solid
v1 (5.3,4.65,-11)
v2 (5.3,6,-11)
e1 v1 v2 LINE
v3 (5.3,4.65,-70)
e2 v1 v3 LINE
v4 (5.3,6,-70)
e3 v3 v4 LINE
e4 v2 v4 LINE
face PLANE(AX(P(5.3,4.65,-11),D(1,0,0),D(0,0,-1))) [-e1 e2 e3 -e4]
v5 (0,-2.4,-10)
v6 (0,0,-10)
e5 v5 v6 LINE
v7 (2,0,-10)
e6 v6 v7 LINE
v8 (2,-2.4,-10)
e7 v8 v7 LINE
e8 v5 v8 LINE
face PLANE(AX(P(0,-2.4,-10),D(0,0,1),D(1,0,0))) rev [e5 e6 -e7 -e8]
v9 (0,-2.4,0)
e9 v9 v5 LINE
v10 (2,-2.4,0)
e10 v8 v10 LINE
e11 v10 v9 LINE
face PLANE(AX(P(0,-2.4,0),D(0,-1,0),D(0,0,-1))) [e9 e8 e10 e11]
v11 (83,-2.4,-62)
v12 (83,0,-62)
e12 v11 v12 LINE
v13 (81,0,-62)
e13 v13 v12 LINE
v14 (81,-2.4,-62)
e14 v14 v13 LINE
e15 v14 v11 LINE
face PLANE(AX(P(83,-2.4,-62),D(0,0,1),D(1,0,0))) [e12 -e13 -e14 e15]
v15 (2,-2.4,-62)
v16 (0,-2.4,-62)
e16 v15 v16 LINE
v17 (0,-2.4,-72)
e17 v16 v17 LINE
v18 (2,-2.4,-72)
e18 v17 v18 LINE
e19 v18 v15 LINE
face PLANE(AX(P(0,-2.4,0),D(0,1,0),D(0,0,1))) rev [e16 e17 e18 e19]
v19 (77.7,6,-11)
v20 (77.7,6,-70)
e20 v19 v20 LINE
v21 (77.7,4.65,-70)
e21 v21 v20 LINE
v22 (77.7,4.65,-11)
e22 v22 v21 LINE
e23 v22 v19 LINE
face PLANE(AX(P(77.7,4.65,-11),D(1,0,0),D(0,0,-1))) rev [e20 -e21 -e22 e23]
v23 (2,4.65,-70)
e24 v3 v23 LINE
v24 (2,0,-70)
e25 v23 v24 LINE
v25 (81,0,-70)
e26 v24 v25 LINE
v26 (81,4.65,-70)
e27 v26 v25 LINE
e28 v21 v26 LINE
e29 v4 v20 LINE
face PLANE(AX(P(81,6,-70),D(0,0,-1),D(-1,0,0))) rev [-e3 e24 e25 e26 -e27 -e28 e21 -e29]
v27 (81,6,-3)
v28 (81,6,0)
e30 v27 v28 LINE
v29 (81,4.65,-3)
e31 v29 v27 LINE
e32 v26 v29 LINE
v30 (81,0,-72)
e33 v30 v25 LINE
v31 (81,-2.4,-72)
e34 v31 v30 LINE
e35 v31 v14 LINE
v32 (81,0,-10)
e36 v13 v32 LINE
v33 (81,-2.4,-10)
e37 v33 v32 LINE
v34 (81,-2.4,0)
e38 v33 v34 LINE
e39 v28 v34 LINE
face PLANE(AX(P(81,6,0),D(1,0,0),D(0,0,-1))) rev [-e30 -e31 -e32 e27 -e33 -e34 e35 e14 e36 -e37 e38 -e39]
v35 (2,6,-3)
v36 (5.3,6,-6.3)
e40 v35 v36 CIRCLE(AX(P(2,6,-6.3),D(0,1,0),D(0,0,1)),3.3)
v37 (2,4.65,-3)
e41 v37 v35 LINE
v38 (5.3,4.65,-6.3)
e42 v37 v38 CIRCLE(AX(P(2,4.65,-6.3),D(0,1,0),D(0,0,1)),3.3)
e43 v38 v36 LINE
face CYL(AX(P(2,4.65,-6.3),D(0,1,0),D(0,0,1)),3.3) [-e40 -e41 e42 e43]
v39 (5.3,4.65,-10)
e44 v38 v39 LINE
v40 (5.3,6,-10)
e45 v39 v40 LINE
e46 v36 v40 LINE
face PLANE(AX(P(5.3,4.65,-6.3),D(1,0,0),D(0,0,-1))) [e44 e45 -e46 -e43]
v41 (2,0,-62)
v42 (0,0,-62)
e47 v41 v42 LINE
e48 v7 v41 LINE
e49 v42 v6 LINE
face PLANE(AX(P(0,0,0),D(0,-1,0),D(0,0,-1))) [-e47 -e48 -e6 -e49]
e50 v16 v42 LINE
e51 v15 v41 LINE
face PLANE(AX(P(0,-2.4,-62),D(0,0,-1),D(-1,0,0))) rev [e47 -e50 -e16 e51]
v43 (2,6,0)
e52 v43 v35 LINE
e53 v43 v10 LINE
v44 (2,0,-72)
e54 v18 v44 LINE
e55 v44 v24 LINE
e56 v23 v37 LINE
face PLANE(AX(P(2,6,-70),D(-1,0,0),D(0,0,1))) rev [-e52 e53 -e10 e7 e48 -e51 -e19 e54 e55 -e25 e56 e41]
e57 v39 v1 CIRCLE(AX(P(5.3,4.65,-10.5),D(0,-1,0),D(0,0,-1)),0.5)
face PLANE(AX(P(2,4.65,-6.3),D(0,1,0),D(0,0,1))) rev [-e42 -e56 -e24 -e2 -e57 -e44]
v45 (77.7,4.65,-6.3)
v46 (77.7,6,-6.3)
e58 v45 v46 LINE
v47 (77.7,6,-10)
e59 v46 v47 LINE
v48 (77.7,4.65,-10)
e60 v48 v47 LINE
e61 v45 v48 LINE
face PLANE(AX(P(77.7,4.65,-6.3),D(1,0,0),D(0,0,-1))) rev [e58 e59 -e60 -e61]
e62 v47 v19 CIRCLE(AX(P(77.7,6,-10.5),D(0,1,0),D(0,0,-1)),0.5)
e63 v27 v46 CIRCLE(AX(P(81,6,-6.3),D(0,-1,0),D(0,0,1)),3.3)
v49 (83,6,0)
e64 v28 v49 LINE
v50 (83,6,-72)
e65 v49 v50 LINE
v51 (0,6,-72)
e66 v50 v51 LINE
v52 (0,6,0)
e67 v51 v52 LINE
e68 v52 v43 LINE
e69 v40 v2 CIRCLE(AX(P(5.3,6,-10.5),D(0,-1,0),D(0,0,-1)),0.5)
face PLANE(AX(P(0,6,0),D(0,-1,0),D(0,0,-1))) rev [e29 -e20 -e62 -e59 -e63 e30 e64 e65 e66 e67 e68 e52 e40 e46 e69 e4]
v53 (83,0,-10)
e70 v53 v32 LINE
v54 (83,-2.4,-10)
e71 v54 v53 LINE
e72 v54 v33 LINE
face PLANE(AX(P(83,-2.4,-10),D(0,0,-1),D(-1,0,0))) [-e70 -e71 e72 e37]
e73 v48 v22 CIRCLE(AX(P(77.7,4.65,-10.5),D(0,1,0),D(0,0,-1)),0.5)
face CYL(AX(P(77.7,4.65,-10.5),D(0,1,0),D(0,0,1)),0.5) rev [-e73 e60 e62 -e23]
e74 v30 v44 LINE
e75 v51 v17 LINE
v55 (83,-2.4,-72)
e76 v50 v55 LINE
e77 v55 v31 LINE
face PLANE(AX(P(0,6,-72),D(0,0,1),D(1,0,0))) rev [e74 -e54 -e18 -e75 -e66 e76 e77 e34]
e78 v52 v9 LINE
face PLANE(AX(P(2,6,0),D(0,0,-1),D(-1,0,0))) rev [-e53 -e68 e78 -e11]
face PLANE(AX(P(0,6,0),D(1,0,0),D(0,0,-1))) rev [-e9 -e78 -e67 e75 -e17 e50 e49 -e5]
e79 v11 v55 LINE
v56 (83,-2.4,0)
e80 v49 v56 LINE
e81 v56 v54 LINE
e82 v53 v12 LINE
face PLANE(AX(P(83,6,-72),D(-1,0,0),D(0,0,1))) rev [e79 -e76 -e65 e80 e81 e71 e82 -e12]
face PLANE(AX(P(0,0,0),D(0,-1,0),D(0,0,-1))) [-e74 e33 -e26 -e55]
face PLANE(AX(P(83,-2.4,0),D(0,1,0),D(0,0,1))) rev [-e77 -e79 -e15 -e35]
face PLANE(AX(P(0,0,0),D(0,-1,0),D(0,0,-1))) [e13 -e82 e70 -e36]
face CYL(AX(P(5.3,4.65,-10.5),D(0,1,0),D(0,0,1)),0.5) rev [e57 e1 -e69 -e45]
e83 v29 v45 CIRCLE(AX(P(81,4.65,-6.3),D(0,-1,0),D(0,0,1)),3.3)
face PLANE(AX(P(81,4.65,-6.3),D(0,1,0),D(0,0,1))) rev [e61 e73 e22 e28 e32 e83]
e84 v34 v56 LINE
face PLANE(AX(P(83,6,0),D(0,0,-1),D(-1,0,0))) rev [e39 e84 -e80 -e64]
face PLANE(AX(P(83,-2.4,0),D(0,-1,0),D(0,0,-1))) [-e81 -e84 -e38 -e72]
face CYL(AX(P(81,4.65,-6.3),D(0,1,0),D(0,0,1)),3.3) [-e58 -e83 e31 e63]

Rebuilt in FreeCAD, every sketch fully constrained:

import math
import FreeCAD as App
import Part
import Sketcher
from FreeCAD import Vector


def add_polygon(sketch, points):
    """Adds a closed chain of lines whose ends are joined by coincident constraints."""
    first, n = sketch.GeometryCount, len(points)
    for a, b in zip(points, points[1:] + points[:1]):
        sketch.addGeometry(Part.LineSegment(App.Vector(*a, 0), App.Vector(*b, 0)), False)
    for i in range(n):
        sketch.addConstraint(Sketcher.Constraint("Coincident", first + i, 2, first + (i + 1) % n, 1))

doc = App.newDocument("Part")
body = doc.addObject("PartDesign::Body", "Body")

# Sketch on XZ plane
sketch1 = body.newObject("Sketcher::SketchObject", "Sketch")
sketch1.AttachmentSupport = (doc.getObject("XZ_Plane"), [""])
sketch1.MapMode = "FlatFace"
add_polygon(sketch1, [(0, -72), (0, 0), (2, 0), (2, -70), (81, -70), (81, 0), (83, 0), (83, -72)])  # lines 0-7
sketch1.addConstraint([
    Sketcher.Constraint("Vertical", 0),
    Sketcher.Constraint("Horizontal", 1),
    Sketcher.Constraint("Vertical", 2),
    Sketcher.Constraint("Horizontal", 3),
    Sketcher.Constraint("Vertical", 4),
    Sketcher.Constraint("Horizontal", 5),
    Sketcher.Constraint("Vertical", 6),
    Sketcher.Constraint("Horizontal", 7),
    Sketcher.Constraint("Coincident", 0, 2, -1, 1),
    Sketcher.Constraint("PointOnObject", 4, 2, -1),
    Sketcher.Constraint("Equal", 1, 5),
    Sketcher.Constraint("DistanceX", 1, 1, 1, 2, 2.0),
    Sketcher.Constraint("DistanceX", 3, 1, 3, 2, 79.0),
    Sketcher.Constraint("DistanceY", 0, 1, 0, 2, 72.0),
    Sketcher.Constraint("DistanceY", 2, 2, 2, 1, 70.0),
])
pad1 = body.newObject("PartDesign::Pad", "Pad")
pad1.Profile = sketch1
pad1.Length = 6
pad1.Reversed = True

# Sketch on XZ plane
sketch2 = body.newObject("Sketcher::SketchObject", "Sketch001")
sketch2.AttachmentSupport = (doc.getObject("XZ_Plane"), [""])
sketch2.MapMode = "FlatFace"
sketch2.AttachmentOffset = App.Placement(Vector(0, 0, -6), App.Rotation())
sketch2.addGeometry([
    Part.LineSegment(Vector(2, -70, 0), Vector(2, -3, 0)),  # 0
    Part.ArcOfCircle(Part.Circle(Vector(2, -6.3, 0), Vector(0, 0, 1), 3.3), math.radians(0), math.radians(90)),  # 1
    Part.LineSegment(Vector(5.3, -6.3, 0), Vector(5.3, -10, 0)),  # 2
    Part.ArcOfCircle(Part.Circle(Vector(5.3, -10.5, 0), Vector(0, 0, 1), 0.5), math.radians(90), math.radians(270)),  # 3
    Part.LineSegment(Vector(5.3, -11, 0), Vector(5.3, -70, 0)),  # 4
    Part.LineSegment(Vector(5.3, -70, 0), Vector(2, -70, 0)),  # 5
], False)
sketch2.addConstraint([
    Sketcher.Constraint("Coincident", 0, 2, 1, 2),
    Sketcher.Constraint("Tangent", 1, 1, 2, 1),
    Sketcher.Constraint("Coincident", 2, 2, 3, 1),
    Sketcher.Constraint("Coincident", 3, 2, 4, 1),
    Sketcher.Constraint("Coincident", 4, 2, 5, 1),
    Sketcher.Constraint("Coincident", 5, 2, 0, 1),
    Sketcher.Constraint("Vertical", 0),
    Sketcher.Constraint("Vertical", 2),
    Sketcher.Constraint("Vertical", 4),
    Sketcher.Constraint("Horizontal", 5),
    Sketcher.Constraint("Vertical", 1, 3, 0, 2),
    Sketcher.Constraint("Vertical", 3, 3, 1, 1),
    Sketcher.Constraint("Vertical", 2, 2, 3, 2),
    Sketcher.Constraint("Radius", 1, 3.3),
    Sketcher.Constraint("Radius", 3, 0.5),
    Sketcher.Constraint("DistanceY", 0, 1, 0, 2, 67.0),
    Sketcher.Constraint("DistanceY", 4, 2, 4, 1, 59.0),
    Sketcher.Constraint("DistanceX", -1, 1, 1, 3, 2.0),
    Sketcher.Constraint("DistanceY", 0, 2, -1, 1, 3.0),
])
pad2 = body.newObject("PartDesign::Pad", "Pad001")
pad2.Profile = sketch2
pad2.Length = 1.35

# Sketch on XZ plane
sketch3 = body.newObject("Sketcher::SketchObject", "Sketch002")
sketch3.AttachmentSupport = (doc.getObject("XZ_Plane"), [""])
sketch3.MapMode = "FlatFace"
add_polygon(sketch3, [(0, 0), (0, -10), (2, -10), (2, 0)])  # lines 0-3
add_polygon(sketch3, [(0, -62), (0, -72), (2, -72), (2, -62)])  # lines 4-7
sketch3.addConstraint([
    Sketcher.Constraint("Vertical", 0),
    Sketcher.Constraint("Horizontal", 1),
    Sketcher.Constraint("Vertical", 2),
    Sketcher.Constraint("Horizontal", 3),
    Sketcher.Constraint("Vertical", 4),
    Sketcher.Constraint("Horizontal", 5),
    Sketcher.Constraint("Vertical", 6),
    Sketcher.Constraint("Horizontal", 7),
    Sketcher.Constraint("Coincident", 3, 2, -1, 1),
    Sketcher.Constraint("PointOnObject", 4, 2, -2),
    Sketcher.Constraint("Vertical", 2, 2, 5, 2),
    Sketcher.Constraint("Equal", 2, 4),
    Sketcher.Constraint("DistanceX", 1, 1, 1, 2, 2.0),
    Sketcher.Constraint("DistanceY", 0, 2, 0, 1, 10.0),
    Sketcher.Constraint("DistanceY", 4, 2, -1, 1, 72.0),
])
pad3 = body.newObject("PartDesign::Pad", "Pad002")
pad3.Profile = sketch3
pad3.Length = 2.4
doc.recompute()

datumplane = body.newObject("PartDesign::Plane", "DatumPlane")
datumplane.AttachmentSupport = (doc.getObject("YZ_Plane"), [""])
datumplane.MapMode = "FlatFace"
datumplane.AttachmentOffset = App.Placement(Vector(0, 0, 41.5), App.Rotation())
mirrored = body.newObject("PartDesign::Mirrored", "Mirrored")
mirrored.Originals = [pad2, pad3]
mirrored.MirrorPlane = (datumplane, [""])
body.Tip = mirrored

doc.recompute()
